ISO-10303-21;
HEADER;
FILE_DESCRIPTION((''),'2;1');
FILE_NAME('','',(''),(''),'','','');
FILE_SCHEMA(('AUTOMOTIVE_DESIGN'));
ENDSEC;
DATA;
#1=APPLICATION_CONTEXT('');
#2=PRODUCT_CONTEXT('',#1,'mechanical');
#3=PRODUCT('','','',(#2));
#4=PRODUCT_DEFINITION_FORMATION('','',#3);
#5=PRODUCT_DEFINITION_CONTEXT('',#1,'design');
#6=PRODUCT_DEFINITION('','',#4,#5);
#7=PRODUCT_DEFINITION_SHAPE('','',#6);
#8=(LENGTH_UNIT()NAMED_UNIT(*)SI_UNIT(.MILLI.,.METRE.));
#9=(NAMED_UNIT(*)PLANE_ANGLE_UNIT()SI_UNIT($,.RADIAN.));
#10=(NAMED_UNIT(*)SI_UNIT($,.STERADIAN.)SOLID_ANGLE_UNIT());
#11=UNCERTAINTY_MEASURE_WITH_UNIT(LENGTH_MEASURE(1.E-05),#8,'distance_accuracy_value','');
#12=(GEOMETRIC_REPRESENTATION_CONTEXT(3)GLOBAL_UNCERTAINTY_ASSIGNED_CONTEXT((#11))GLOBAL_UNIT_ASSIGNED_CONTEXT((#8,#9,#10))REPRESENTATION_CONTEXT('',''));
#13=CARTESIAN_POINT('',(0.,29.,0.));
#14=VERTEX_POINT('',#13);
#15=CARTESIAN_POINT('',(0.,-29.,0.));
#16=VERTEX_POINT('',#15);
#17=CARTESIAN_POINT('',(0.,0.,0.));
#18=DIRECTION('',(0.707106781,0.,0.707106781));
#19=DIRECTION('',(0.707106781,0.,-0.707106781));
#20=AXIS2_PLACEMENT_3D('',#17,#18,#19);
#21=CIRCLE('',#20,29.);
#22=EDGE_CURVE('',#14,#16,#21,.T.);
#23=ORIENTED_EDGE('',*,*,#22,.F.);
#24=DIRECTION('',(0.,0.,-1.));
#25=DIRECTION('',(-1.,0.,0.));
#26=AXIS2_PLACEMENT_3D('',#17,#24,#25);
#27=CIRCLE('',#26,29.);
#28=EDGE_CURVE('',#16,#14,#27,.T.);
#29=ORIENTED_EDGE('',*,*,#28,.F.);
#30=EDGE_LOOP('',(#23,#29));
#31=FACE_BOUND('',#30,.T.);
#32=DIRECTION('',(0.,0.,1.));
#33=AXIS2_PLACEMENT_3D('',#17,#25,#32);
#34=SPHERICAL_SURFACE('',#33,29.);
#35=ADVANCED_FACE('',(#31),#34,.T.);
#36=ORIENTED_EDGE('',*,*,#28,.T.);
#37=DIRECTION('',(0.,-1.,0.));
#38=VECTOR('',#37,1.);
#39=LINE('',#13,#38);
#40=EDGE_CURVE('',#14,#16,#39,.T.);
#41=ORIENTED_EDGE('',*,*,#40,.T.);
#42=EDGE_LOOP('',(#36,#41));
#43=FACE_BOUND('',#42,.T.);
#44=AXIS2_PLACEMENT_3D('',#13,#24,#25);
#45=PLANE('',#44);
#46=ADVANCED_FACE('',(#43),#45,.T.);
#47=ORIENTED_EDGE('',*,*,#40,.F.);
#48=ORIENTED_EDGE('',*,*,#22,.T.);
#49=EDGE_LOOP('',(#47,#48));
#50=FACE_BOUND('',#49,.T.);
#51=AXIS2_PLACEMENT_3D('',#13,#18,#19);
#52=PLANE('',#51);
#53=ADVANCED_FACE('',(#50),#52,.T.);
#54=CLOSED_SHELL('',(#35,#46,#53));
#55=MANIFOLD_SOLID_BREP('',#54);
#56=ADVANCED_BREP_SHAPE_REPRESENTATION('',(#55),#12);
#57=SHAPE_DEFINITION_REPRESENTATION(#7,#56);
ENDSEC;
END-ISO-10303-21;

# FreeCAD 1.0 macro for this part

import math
import FreeCAD as App
import Part
import Sketcher

V = App.Vector
Q = App.Units.Quantity

doc = App.newDocument("Part")
body = doc.addObject("PartDesign::Body", "Body")

sketch1 = body.newObject("Sketcher::SketchObject", "Sketch")
sketch1.AttachmentSupport = (doc.getObject("XZ_Plane"), [""])
sketch1.MapMode = "FlatFace"
sketch1.addGeometry([
    Part.LineSegment(V(-29, 0, 0), V(29, 0, 0)),
    Part.ArcOfCircle(Part.Circle(V(0, 0, 0), V(0, 0, 1), 29), math.radians(180), math.radians(360)),
], False)
sketch1.addConstraint([
    Sketcher.Constraint("Coincident", 0, 1, 1, 1),
    Sketcher.Constraint("Coincident", 1, 2, 0, 2),
    Sketcher.Constraint("Horizontal", 0),
    Sketcher.Constraint("Coincident", 1, 3, -1, 1),
    Sketcher.Constraint("PointOnObject", 0, 1, -1),
    Sketcher.Constraint("Radius", 1, 29.0),
])
revolution = body.newObject("PartDesign::Revolution", "Revolution")
revolution.Profile = sketch1
revolution.ReferenceAxis = (sketch1, ["H_Axis"])
revolution.Angle = 360

sketch2 = body.newObject("Sketcher::SketchObject", "Sketch001")
sketch2.AttachmentSupport = (doc.getObject("XZ_Plane"), [""])
sketch2.MapMode = "FlatFace"
sketch2.addGeometry([
    Part.LineSegment(V(-31, 0, 0), V(0, 0, 0)),
    Part.LineSegment(V(0, 0, 0), V(-22, 22, 0)),
    Part.ArcOfCircle(Part.Circle(V(0, 0, 0), V(0, 0, 1), 31), math.radians(180), math.radians(495)),
], False)
sketch2.addConstraint([
    Sketcher.Constraint("Coincident", 0, 2, 1, 1),
    Sketcher.Constraint("Coincident", 1, 2, 2, 2),
    Sketcher.Constraint("Coincident", 2, 1, 0, 1),
    Sketcher.Constraint("Horizontal", 0),
    Sketcher.Constraint("Coincident", 2, 3, -1, 1),
    Sketcher.Constraint("Coincident", 0, 2, -1, 1),
    Sketcher.Constraint("Radius", 2, 31.0),
    Sketcher.Constraint("Angle", 1, Q("135 deg")),
])
pocket1 = body.newObject("PartDesign::Pocket", "Pocket")
pocket1.Profile = sketch2
pocket1.Type = "ThroughAll"
pocket1.Midplane = True

doc.recompute()
